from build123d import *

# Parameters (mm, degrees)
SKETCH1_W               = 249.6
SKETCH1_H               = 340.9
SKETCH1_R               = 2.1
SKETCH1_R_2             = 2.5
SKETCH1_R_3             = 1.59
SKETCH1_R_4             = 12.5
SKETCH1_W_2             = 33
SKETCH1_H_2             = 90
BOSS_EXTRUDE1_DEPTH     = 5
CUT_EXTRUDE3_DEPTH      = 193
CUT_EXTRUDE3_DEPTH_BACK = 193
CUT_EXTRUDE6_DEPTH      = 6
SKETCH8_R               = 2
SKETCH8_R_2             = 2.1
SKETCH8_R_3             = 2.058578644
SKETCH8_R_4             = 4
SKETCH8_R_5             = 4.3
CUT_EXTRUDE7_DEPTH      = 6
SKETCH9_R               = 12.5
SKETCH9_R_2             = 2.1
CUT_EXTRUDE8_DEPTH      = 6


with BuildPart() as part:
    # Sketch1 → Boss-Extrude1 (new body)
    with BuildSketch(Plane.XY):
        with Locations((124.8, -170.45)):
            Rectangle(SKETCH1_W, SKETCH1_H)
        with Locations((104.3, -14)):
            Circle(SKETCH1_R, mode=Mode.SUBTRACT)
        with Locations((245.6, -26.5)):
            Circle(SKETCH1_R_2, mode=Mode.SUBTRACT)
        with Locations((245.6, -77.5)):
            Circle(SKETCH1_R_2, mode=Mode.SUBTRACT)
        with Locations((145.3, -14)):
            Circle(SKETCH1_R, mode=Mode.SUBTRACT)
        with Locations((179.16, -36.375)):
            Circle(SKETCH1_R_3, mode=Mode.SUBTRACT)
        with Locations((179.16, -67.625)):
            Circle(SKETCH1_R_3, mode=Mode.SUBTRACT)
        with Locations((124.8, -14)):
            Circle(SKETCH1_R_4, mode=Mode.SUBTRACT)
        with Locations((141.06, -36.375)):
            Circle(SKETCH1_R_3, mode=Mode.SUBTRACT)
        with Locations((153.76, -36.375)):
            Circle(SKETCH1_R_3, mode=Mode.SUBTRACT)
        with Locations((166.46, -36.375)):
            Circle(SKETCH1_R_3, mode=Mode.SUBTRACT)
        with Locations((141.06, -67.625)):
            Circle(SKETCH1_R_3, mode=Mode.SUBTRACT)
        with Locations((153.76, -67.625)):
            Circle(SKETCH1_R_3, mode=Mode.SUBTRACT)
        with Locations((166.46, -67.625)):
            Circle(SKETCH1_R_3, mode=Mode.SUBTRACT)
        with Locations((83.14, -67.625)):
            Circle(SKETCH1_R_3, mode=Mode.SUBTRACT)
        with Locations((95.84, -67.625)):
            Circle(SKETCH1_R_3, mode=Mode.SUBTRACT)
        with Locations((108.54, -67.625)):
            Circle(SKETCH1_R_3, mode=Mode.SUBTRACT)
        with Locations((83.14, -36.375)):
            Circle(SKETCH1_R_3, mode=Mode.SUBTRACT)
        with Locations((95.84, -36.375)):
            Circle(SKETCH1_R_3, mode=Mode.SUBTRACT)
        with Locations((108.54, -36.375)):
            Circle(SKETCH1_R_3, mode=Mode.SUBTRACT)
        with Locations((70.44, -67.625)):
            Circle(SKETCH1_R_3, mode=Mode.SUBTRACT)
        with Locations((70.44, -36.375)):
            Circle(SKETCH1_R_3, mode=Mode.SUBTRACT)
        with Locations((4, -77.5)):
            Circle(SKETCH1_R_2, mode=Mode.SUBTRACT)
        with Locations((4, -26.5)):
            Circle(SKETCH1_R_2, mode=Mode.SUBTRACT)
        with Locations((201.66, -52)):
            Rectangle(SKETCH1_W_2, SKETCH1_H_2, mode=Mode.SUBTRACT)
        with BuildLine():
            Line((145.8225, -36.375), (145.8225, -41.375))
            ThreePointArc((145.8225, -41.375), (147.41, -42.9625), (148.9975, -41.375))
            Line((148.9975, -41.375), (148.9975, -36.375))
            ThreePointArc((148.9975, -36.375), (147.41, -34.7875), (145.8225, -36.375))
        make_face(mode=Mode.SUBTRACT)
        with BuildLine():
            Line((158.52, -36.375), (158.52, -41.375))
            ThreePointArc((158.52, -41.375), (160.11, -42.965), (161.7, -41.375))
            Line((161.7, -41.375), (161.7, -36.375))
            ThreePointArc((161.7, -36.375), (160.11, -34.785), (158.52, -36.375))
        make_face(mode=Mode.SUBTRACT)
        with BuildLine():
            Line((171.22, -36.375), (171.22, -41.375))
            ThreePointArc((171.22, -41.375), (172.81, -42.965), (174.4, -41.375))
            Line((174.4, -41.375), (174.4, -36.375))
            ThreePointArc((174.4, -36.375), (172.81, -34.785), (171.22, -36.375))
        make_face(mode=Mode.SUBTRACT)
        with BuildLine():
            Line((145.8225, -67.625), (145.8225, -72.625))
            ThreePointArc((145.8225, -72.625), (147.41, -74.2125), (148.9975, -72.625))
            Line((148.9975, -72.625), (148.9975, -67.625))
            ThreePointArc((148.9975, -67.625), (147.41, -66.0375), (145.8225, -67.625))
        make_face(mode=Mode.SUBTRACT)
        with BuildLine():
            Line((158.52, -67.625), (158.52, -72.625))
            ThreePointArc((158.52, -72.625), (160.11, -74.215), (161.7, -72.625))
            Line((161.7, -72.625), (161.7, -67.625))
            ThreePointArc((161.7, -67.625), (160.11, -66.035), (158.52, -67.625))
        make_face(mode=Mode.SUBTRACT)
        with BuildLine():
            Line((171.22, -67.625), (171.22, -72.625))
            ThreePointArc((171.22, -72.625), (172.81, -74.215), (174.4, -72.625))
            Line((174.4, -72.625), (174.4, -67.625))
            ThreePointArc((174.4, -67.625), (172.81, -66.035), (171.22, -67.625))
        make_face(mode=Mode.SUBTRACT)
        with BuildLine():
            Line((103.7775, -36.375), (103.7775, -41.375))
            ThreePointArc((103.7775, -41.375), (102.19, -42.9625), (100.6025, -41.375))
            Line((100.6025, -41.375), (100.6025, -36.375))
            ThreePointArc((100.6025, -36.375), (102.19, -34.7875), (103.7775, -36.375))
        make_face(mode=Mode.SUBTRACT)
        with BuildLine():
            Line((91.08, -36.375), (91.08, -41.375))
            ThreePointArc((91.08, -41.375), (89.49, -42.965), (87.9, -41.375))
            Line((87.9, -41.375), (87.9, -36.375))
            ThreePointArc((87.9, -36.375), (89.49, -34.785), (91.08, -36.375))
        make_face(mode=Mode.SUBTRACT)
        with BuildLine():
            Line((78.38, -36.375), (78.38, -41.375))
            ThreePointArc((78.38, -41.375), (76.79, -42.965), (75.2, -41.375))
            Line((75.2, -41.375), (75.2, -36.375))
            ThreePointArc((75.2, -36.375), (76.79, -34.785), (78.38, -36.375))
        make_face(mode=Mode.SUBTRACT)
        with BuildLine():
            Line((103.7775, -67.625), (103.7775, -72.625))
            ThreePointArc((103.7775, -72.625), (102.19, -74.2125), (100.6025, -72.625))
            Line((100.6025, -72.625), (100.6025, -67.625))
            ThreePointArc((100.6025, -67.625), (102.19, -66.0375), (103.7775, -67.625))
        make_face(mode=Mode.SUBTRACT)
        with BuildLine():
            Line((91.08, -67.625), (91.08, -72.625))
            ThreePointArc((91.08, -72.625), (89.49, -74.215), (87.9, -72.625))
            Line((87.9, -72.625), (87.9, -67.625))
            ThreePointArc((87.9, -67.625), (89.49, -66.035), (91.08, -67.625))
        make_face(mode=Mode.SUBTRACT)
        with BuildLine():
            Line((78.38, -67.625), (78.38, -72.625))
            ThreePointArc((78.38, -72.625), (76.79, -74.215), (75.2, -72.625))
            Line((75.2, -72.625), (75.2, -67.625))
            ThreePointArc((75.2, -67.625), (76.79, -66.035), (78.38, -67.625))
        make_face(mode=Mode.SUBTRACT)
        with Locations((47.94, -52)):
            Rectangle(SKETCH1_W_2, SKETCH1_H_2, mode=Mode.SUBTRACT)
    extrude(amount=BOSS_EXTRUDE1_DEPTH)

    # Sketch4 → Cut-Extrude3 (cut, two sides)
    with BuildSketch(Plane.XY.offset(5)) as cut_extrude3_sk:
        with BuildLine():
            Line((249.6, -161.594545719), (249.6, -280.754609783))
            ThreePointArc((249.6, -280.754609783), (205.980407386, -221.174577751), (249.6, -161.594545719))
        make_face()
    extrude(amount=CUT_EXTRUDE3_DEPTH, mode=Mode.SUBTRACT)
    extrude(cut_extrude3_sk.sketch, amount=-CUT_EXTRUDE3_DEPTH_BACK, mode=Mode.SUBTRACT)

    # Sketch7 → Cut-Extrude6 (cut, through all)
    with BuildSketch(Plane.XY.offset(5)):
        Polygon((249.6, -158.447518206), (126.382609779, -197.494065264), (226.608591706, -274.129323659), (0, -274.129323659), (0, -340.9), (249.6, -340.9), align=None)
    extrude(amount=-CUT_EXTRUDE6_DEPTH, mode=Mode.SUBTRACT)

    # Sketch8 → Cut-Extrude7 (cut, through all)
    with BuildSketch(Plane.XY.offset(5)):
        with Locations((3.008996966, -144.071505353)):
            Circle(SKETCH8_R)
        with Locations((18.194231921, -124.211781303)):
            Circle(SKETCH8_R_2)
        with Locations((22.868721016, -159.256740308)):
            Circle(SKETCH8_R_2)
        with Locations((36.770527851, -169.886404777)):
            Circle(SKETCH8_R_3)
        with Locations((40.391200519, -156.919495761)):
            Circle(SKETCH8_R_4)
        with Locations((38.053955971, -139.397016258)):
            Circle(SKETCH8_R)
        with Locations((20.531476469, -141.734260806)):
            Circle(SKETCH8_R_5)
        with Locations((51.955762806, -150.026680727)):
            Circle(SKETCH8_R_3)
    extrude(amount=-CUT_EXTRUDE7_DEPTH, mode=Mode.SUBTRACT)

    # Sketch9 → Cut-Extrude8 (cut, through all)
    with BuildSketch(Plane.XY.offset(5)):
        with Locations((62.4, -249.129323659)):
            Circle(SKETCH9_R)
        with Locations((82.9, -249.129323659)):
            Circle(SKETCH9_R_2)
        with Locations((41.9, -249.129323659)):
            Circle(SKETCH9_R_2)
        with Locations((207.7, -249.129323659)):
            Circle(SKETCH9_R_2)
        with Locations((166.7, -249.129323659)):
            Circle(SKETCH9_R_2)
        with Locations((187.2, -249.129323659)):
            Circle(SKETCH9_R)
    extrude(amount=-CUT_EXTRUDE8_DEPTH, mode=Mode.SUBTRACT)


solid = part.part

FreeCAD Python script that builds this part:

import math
import FreeCAD as App
import Part
import Sketcher


def add_polygon(sketch, points):
    """Adds a closed chain of lines whose ends are joined by coincident constraints."""
    first, n = sketch.GeometryCount, len(points)
    for a, b in zip(points, points[1:] + points[:1]):
        sketch.addGeometry(Part.LineSegment(App.Vector(*a, 0), App.Vector(*b, 0)), False)
    for i in range(n):
        sketch.addConstraint(Sketcher.Constraint("Coincident", first + i, 2, first + (i + 1) % n, 1))

doc = App.newDocument("Part")
body = doc.addObject("PartDesign::Body", "Body")

# Sketch on XY plane
sketch1 = body.newObject("Sketcher::SketchObject", "Sketch")
sketch1.AttachmentSupport = (doc.getObject("XY_Plane"), [""])
sketch1.MapMode = "FlatFace"
add_polygon(sketch1, [(0, 0), (0, -340.9), (249.6, -340.9), (249.6, 0)])  # lines 0-3
sketch1.addGeometry(Part.Circle(App.Vector(4, -77.5, 0), App.Vector(0, 0, 1), 2.5), False)  # 4
add_polygon(sketch1, [(64.4, -97), (31.4, -97), (31.4, -7), (64.4, -7)])  # lines 5-8
sketch1.addGeometry(Part.Circle(App.Vector(70.4, -67.6, 0), App.Vector(0, 0, 1), 1.6), False)  # 9
sketch1.addGeometry(Part.ArcOfCircle(Part.Circle(App.Vector(76.8, -67.6, 0), App.Vector(0, 0, 1), 1.6), math.radians(0), math.radians(180)), False)  # 10
sketch1.addGeometry(Part.LineSegment(App.Vector(78.4, -67.6, 0), App.Vector(78.4, -72.6, 0)), False)  # 11
sketch1.addGeometry(Part.ArcOfCircle(Part.Circle(App.Vector(76.8, -72.6, 0), App.Vector(0, 0, 1), 1.6), math.radians(180), math.radians(360)), False)  # 12
sketch1.addGeometry(Part.LineSegment(App.Vector(75.2, -72.6, 0), App.Vector(75.2, -67.6, 0)), False)  # 13
sketch1.addGeometry(Part.Circle(App.Vector(83.1, -67.6, 0), App.Vector(0, 0, 1), 1.6), False)  # 14
sketch1.addGeometry(Part.ArcOfCircle(Part.Circle(App.Vector(89.5, -67.6, 0), App.Vector(0, 0, 1), 1.6), math.radians(0), math.radians(180)), False)  # 15
sketch1.addGeometry(Part.LineSegment(App.Vector(91.1, -67.6, 0), App.Vector(91.1, -72.6, 0)), False)  # 16
sketch1.addGeometry(Part.ArcOfCircle(Part.Circle(App.Vector(89.5, -72.6, 0), App.Vector(0, 0, 1), 1.6), math.radians(180), math.radians(360)), False)  # 17
sketch1.addGeometry(Part.LineSegment(App.Vector(87.9, -72.6, 0), App.Vector(87.9, -67.6, 0)), False)  # 18
sketch1.addGeometry(Part.Circle(App.Vector(95.8, -67.6, 0), App.Vector(0, 0, 1), 1.6), False)  # 19
sketch1.addGeometry(Part.ArcOfCircle(Part.Circle(App.Vector(102.2, -67.6, 0), App.Vector(0, 0, 1), 1.6), math.radians(0), math.radians(180)), False)  # 20
sketch1.addGeometry(Part.LineSegment(App.Vector(103.8, -67.6, 0), App.Vector(103.8, -72.6, 0)), False)  # 21
sketch1.addGeometry(Part.ArcOfCircle(Part.Circle(App.Vector(102.2, -72.6, 0), App.Vector(0, 0, 1), 1.6), math.radians(180), math.radians(360)), False)  # 22
sketch1.addGeometry(Part.LineSegment(App.Vector(100.6, -72.6, 0), App.Vector(100.6, -67.6, 0)), False)  # 23
sketch1.addGeometry(Part.Circle(App.Vector(108.5, -67.6, 0), App.Vector(0, 0, 1), 1.6), False)  # 24
sketch1.addGeometry(Part.Circle(App.Vector(245.6, -77.5, 0), App.Vector(0, 0, 1), 2.5), False)  # 25
sketch1.addGeometry(Part.LineSegment(App.Vector(145.8, -72.6, 0), App.Vector(145.8, -67.6, 0)), False)  # 26
sketch1.addGeometry(Part.ArcOfCircle(Part.Circle(App.Vector(147.4, -67.6, 0), App.Vector(0, 0, 1), 1.6), math.radians(0), math.radians(180)), False)  # 27
sketch1.addGeometry(Part.LineSegment(App.Vector(149, -67.6, 0), App.Vector(149, -72.6, 0)), False)  # 28
sketch1.addGeometry(Part.ArcOfCircle(Part.Circle(App.Vector(147.4, -72.6, 0), App.Vector(0, 0, 1), 1.6), math.radians(180), math.radians(360)), False)  # 29
sketch1.addGeometry(Part.Circle(App.Vector(141.1, -67.6, 0), App.Vector(0, 0, 1), 1.6), False)  # 30
sketch1.addGeometry(Part.Circle(App.Vector(153.8, -67.6, 0), App.Vector(0, 0, 1), 1.6), False)  # 31
sketch1.addGeometry(Part.LineSegment(App.Vector(158.5, -72.6, 0), App.Vector(158.5, -67.6, 0)), False)  # 32
sketch1.addGeometry(Part.ArcOfCircle(Part.Circle(App.Vector(160.1, -67.6, 0), App.Vector(0, 0, 1), 1.6), math.radians(0), math.radians(180)), False)  # 33
sketch1.addGeometry(Part.LineSegment(App.Vector(161.7, -67.6, 0), App.Vector(161.7, -72.6, 0)), False)  # 34
sketch1.addGeometry(Part.ArcOfCircle(Part.Circle(App.Vector(160.1, -72.6, 0), App.Vector(0, 0, 1), 1.6), math.radians(180), math.radians(360)), False)  # 35
sketch1.addGeometry(Part.Circle(App.Vector(166.5, -67.6, 0), App.Vector(0, 0, 1), 1.6), False)  # 36
sketch1.addGeometry(Part.LineSegment(App.Vector(171.2, -72.6, 0), App.Vector(171.2, -67.6, 0)), False)  # 37
sketch1.addGeometry(Part.ArcOfCircle(Part.Circle(App.Vector(172.8, -67.6, 0), App.Vector(0, 0, 1), 1.6), math.radians(0), math.radians(180)), False)  # 38
sketch1.addGeometry(Part.LineSegment(App.Vector(174.4, -67.6, 0), App.Vector(174.4, -72.6, 0)), False)  # 39
sketch1.addGeometry(Part.ArcOfCircle(Part.Circle(App.Vector(172.8, -72.6, 0), App.Vector(0, 0, 1), 1.6), math.radians(180), math.radians(360)), False)  # 40
sketch1.addGeometry(Part.Circle(App.Vector(179.2, -67.6, 0), App.Vector(0, 0, 1), 1.6), False)  # 41
add_polygon(sketch1, [(218.2, -97), (185.2, -97), (185.2, -7), (218.2, -7)])  # lines 42-45
sketch1.addGeometry(Part.Circle(App.Vector(4, -26.5, 0), App.Vector(0, 0, 1), 2.5), False)  # 46
sketch1.addGeometry(Part.ArcOfCircle(Part.Circle(App.Vector(76.8, -36.4, 0), App.Vector(0, 0, 1), 1.6), math.radians(0), math.radians(180)), False)  # 47
sketch1.addGeometry(Part.LineSegment(App.Vector(78.4, -36.4, 0), App.Vector(78.4, -41.4, 0)), False)  # 48
sketch1.addGeometry(Part.ArcOfCircle(Part.Circle(App.Vector(76.8, -41.4, 0), App.Vector(0, 0, 1), 1.6), math.radians(180), math.radians(360)), False)  # 49
sketch1.addGeometry(Part.LineSegment(App.Vector(75.2, -41.4, 0), App.Vector(75.2, -36.4, 0)), False)  # 50
sketch1.addGeometry(Part.ArcOfCircle(Part.Circle(App.Vector(89.5, -36.4, 0), App.Vector(0, 0, 1), 1.6), math.radians(0), math.radians(180)), False)  # 51
sketch1.addGeometry(Part.LineSegment(App.Vector(91.1, -36.4, 0), App.Vector(91.1, -41.4, 0)), False)  # 52
sketch1.addGeometry(Part.ArcOfCircle(Part.Circle(App.Vector(89.5, -41.4, 0), App.Vector(0, 0, 1), 1.6), math.radians(180), math.radians(360)), False)  # 53
sketch1.addGeometry(Part.LineSegment(App.Vector(87.9, -41.4, 0), App.Vector(87.9, -36.4, 0)), False)  # 54
sketch1.addGeometry(Part.ArcOfCircle(Part.Circle(App.Vector(102.2, -36.4, 0), App.Vector(0, 0, 1), 1.6), math.radians(0), math.radians(180)), False)  # 55
sketch1.addGeometry(Part.LineSegment(App.Vector(103.8, -36.4, 0), App.Vector(103.8, -41.4, 0)), False)  # 56
sketch1.addGeometry(Part.ArcOfCircle(Part.Circle(App.Vector(102.2, -41.4, 0), App.Vector(0, 0, 1), 1.6), math.radians(180), math.radians(360)), False)  # 57
sketch1.addGeometry(Part.LineSegment(App.Vector(100.6, -41.4, 0), App.Vector(100.6, -36.4, 0)), False)  # 58
sketch1.addGeometry(Part.Circle(App.Vector(70.4, -36.4, 0), App.Vector(0, 0, 1), 1.6), False)  # 59
sketch1.addGeometry(Part.Circle(App.Vector(83.1, -36.4, 0), App.Vector(0, 0, 1), 1.6), False)  # 60
sketch1.addGeometry(Part.Circle(App.Vector(95.8, -36.4, 0), App.Vector(0, 0, 1), 1.6), False)  # 61
sketch1.addGeometry(Part.Circle(App.Vector(108.5, -36.4, 0), App.Vector(0, 0, 1), 1.6), False)  # 62
sketch1.addGeometry(Part.Circle(App.Vector(104.3, -14, 0), App.Vector(0, 0, 1), 2.1), False)  # 63
sketch1.addGeometry(Part.Circle(App.Vector(124.8, -14, 0), App.Vector(0, 0, 1), 12.5), False)  # 64
sketch1.addGeometry(Part.LineSegment(App.Vector(145.8, -41.4, 0), App.Vector(145.8, -36.4, 0)), False)  # 65
sketch1.addGeometry(Part.ArcOfCircle(Part.Circle(App.Vector(147.4, -36.4, 0), App.Vector(0, 0, 1), 1.6), math.radians(0), math.radians(180)), False)  # 66
sketch1.addGeometry(Part.LineSegment(App.Vector(149, -36.4, 0), App.Vector(149, -41.4, 0)), False)  # 67
sketch1.addGeometry(Part.ArcOfCircle(Part.Circle(App.Vector(147.4, -41.4, 0), App.Vector(0, 0, 1), 1.6), math.radians(180), math.radians(360)), False)  # 68
sketch1.addGeometry(Part.LineSegment(App.Vector(158.5, -41.4, 0), App.Vector(158.5, -36.4, 0)), False)  # 69
sketch1.addGeometry(Part.ArcOfCircle(Part.Circle(App.Vector(160.1, -36.4, 0), App.Vector(0, 0, 1), 1.6), math.radians(0), math.radians(180)), False)  # 70
sketch1.addGeometry(Part.LineSegment(App.Vector(161.7, -36.4, 0), App.Vector(161.7, -41.4, 0)), False)  # 71
sketch1.addGeometry(Part.ArcOfCircle(Part.Circle(App.Vector(160.1, -41.4, 0), App.Vector(0, 0, 1), 1.6), math.radians(180), math.radians(360)), False)  # 72
sketch1.addGeometry(Part.LineSegment(App.Vector(171.2, -41.4, 0), App.Vector(171.2, -36.4, 0)), False)  # 73
sketch1.addGeometry(Part.ArcOfCircle(Part.Circle(App.Vector(172.8, -36.4, 0), App.Vector(0, 0, 1), 1.6), math.radians(0), math.radians(180)), False)  # 74
sketch1.addGeometry(Part.LineSegment(App.Vector(174.4, -36.4, 0), App.Vector(174.4, -41.4, 0)), False)  # 75
sketch1.addGeometry(Part.ArcOfCircle(Part.Circle(App.Vector(172.8, -41.4, 0), App.Vector(0, 0, 1), 1.6), math.radians(180), math.radians(360)), False)  # 76
sketch1.addGeometry(Part.Circle(App.Vector(141.1, -36.4, 0), App.Vector(0, 0, 1), 1.6), False)  # 77
sketch1.addGeometry(Part.Circle(App.Vector(153.8, -36.4, 0), App.Vector(0, 0, 1), 1.6), False)  # 78
sketch1.addGeometry(Part.Circle(App.Vector(166.5, -36.4, 0), App.Vector(0, 0, 1), 1.6), False)  # 79
sketch1.addGeometry(Part.Circle(App.Vector(179.2, -36.4, 0), App.Vector(0, 0, 1), 1.6), False)  # 80
sketch1.addGeometry(Part.Circle(App.Vector(245.6, -26.5, 0), App.Vector(0, 0, 1), 2.5), False)  # 81
sketch1.addGeometry(Part.Circle(App.Vector(145.3, -14, 0), App.Vector(0, 0, 1), 2.1), False)  # 82
sketch1.addConstraint(Sketcher.Constraint("Tangent", 10, 1, 11, 1))
sketch1.addConstraint(Sketcher.Constraint("Tangent", 11, 2, 12, 2))
sketch1.addConstraint(Sketcher.Constraint("Tangent", 12, 1, 13, 1))
sketch1.addConstraint(Sketcher.Constraint("Tangent", 13, 2, 10, 2))
sketch1.addConstraint(Sketcher.Constraint("Tangent", 15, 1, 16, 1))
sketch1.addConstraint(Sketcher.Constraint("Tangent", 16, 2, 17, 2))
sketch1.addConstraint(Sketcher.Constraint("Tangent", 17, 1, 18, 1))
sketch1.addConstraint(Sketcher.Constraint("Tangent", 18, 2, 15, 2))
sketch1.addConstraint(Sketcher.Constraint("Tangent", 20, 1, 21, 1))
sketch1.addConstraint(Sketcher.Constraint("Tangent", 21, 2, 22, 2))
sketch1.addConstraint(Sketcher.Constraint("Tangent", 22, 1, 23, 1))
sketch1.addConstraint(Sketcher.Constraint("Tangent", 23, 2, 20, 2))
sketch1.addConstraint(Sketcher.Constraint("Tangent", 26, 2, 27, 2))
sketch1.addConstraint(Sketcher.Constraint("Tangent", 27, 1, 28, 1))
sketch1.addConstraint(Sketcher.Constraint("Tangent", 28, 2, 29, 2))
sketch1.addConstraint(Sketcher.Constraint("Tangent", 29, 1, 26, 1))
sketch1.addConstraint(Sketcher.Constraint("Tangent", 32, 2, 33, 2))
sketch1.addConstraint(Sketcher.Constraint("Tangent", 33, 1, 34, 1))
sketch1.addConstraint(Sketcher.Constraint("Tangent", 34, 2, 35, 2))
sketch1.addConstraint(Sketcher.Constraint("Tangent", 35, 1, 32, 1))
sketch1.addConstraint(Sketcher.Constraint("Tangent", 37, 2, 38, 2))
sketch1.addConstraint(Sketcher.Constraint("Tangent", 38, 1, 39, 1))
sketch1.addConstraint(Sketcher.Constraint("Tangent", 39, 2, 40, 2))
sketch1.addConstraint(Sketcher.Constraint("Tangent", 40, 1, 37, 1))
sketch1.addConstraint(Sketcher.Constraint("Tangent", 47, 1, 48, 1))
sketch1.addConstraint(Sketcher.Constraint("Tangent", 48, 2, 49, 2))
sketch1.addConstraint(Sketcher.Constraint("Tangent", 49, 1, 50, 1))
sketch1.addConstraint(Sketcher.Constraint("Tangent", 50, 2, 47, 2))
sketch1.addConstraint(Sketcher.Constraint("Tangent", 51, 1, 52, 1))
sketch1.addConstraint(Sketcher.Constraint("Tangent", 52, 2, 53, 2))
sketch1.addConstraint(Sketcher.Constraint("Tangent", 53, 1, 54, 1))
sketch1.addConstraint(Sketcher.Constraint("Tangent", 54, 2, 51, 2))
sketch1.addConstraint(Sketcher.Constraint("Tangent", 55, 1, 56, 1))
sketch1.addConstraint(Sketcher.Constraint("Tangent", 56, 2, 57, 2))
sketch1.addConstraint(Sketcher.Constraint("Tangent", 57, 1, 58, 1))
sketch1.addConstraint(Sketcher.Constraint("Tangent", 58, 2, 55, 2))
sketch1.addConstraint(Sketcher.Constraint("Tangent", 65, 2, 66, 2))
sketch1.addConstraint(Sketcher.Constraint("Tangent", 66, 1, 67, 1))
sketch1.addConstraint(Sketcher.Constraint("Tangent", 67, 2, 68, 2))
sketch1.addConstraint(Sketcher.Constraint("Tangent", 68, 1, 65, 1))
sketch1.addConstraint(Sketcher.Constraint("Tangent", 69, 2, 70, 2))
sketch1.addConstraint(Sketcher.Constraint("Tangent", 70, 1, 71, 1))
sketch1.addConstraint(Sketcher.Constraint("Tangent", 71, 2, 72, 2))
sketch1.addConstraint(Sketcher.Constraint("Tangent", 72, 1, 69, 1))
sketch1.addConstraint(Sketcher.Constraint("Tangent", 73, 2, 74, 2))
sketch1.addConstraint(Sketcher.Constraint("Tangent", 74, 1, 75, 1))
sketch1.addConstraint(Sketcher.Constraint("Tangent", 75, 2, 76, 2))
sketch1.addConstraint(Sketcher.Constraint("Tangent", 76, 1, 73, 1))
sketch1.addConstraint(Sketcher.Constraint("Vertical", 0))
sketch1.addConstraint(Sketcher.Constraint("Horizontal", 1))
sketch1.addConstraint(Sketcher.Constraint("Vertical", 2))
sketch1.addConstraint(Sketcher.Constraint("Horizontal", 3))
sketch1.addConstraint(Sketcher.Constraint("Horizontal", 5))
sketch1.addConstraint(Sketcher.Constraint("Vertical", 6))
sketch1.addConstraint(Sketcher.Constraint("Horizontal", 7))
sketch1.addConstraint(Sketcher.Constraint("Vertical", 8))
sketch1.addConstraint(Sketcher.Constraint("Vertical", 11))
sketch1.addConstraint(Sketcher.Constraint("Vertical", 13))
sketch1.addConstraint(Sketcher.Constraint("Vertical", 16))
sketch1.addConstraint(Sketcher.Constraint("Vertical", 18))
sketch1.addConstraint(Sketcher.Constraint("Vertical", 21))
sketch1.addConstraint(Sketcher.Constraint("Vertical", 23))
sketch1.addConstraint(Sketcher.Constraint("Vertical", 26))
sketch1.addConstraint(Sketcher.Constraint("Vertical", 28))
sketch1.addConstraint(Sketcher.Constraint("Vertical", 32))
sketch1.addConstraint(Sketcher.Constraint("Vertical", 34))
sketch1.addConstraint(Sketcher.Constraint("Vertical", 37))
sketch1.addConstraint(Sketcher.Constraint("Vertical", 39))
sketch1.addConstraint(Sketcher.Constraint("Horizontal", 42))
sketch1.addConstraint(Sketcher.Constraint("Vertical", 43))
sketch1.addConstraint(Sketcher.Constraint("Horizontal", 44))
sketch1.addConstraint(Sketcher.Constraint("Vertical", 45))
sketch1.addConstraint(Sketcher.Constraint("Vertical", 48))
sketch1.addConstraint(Sketcher.Constraint("Vertical", 50))
sketch1.addConstraint(Sketcher.Constraint("Vertical", 52))
sketch1.addConstraint(Sketcher.Constraint("Vertical", 54))
sketch1.addConstraint(Sketcher.Constraint("Vertical", 56))
sketch1.addConstraint(Sketcher.Constraint("Vertical", 58))
sketch1.addConstraint(Sketcher.Constraint("Vertical", 65))
sketch1.addConstraint(Sketcher.Constraint("Vertical", 67))
sketch1.addConstraint(Sketcher.Constraint("Vertical", 69))
sketch1.addConstraint(Sketcher.Constraint("Vertical", 71))
sketch1.addConstraint(Sketcher.Constraint("Vertical", 73))
sketch1.addConstraint(Sketcher.Constraint("Vertical", 75))
sketch1.addConstraint(Sketcher.Constraint("Coincident", 3, 2, -1, 1))
sketch1.addConstraint(Sketcher.Constraint("Equal", 9, 10))
sketch1.addConstraint(Sketcher.Constraint("Equal", 12, 14))
sketch1.addConstraint(Sketcher.Constraint("Equal", 14, 15))
sketch1.addConstraint(Sketcher.Constraint("Equal", 17, 19))
sketch1.addConstraint(Sketcher.Constraint("Equal", 19, 24))
sketch1.addConstraint(Sketcher.Constraint("Equal", 4, 25))
sketch1.addConstraint(Sketcher.Constraint("Equal", 22, 27))
sketch1.addConstraint(Sketcher.Constraint("Equal", 24, 30))
sketch1.addConstraint(Sketcher.Constraint("Equal", 30, 31))
sketch1.addConstraint(Sketcher.Constraint("Equal", 31, 33))
sketch1.addConstraint(Sketcher.Constraint("Equal", 35, 36))
sketch1.addConstraint(Sketcher.Constraint("Equal", 36, 38))
sketch1.addConstraint(Sketcher.Constraint("Equal", 40, 41))
sketch1.addConstraint(Sketcher.Constraint("Equal", 25, 46))
sketch1.addConstraint(Sketcher.Constraint("Equal", 41, 47))
sketch1.addConstraint(Sketcher.Constraint("Equal", 49, 51))
sketch1.addConstraint(Sketcher.Constraint("Equal", 29, 55))
sketch1.addConstraint(Sketcher.Constraint("Equal", 53, 59))
sketch1.addConstraint(Sketcher.Constraint("Equal", 59, 60))
sketch1.addConstraint(Sketcher.Constraint("Equal", 60, 61))
sketch1.addConstraint(Sketcher.Constraint("Equal", 61, 62))
sketch1.addConstraint(Sketcher.Constraint("Equal", 57, 66))
sketch1.addConstraint(Sketcher.Constraint("Equal", 62, 70))
sketch1.addConstraint(Sketcher.Constraint("Equal", 72, 74))
sketch1.addConstraint(Sketcher.Constraint("Equal", 76, 77))
sketch1.addConstraint(Sketcher.Constraint("Equal", 77, 78))
sketch1.addConstraint(Sketcher.Constraint("Equal", 78, 79))
sketch1.addConstraint(Sketcher.Constraint("Equal", 79, 80))
sketch1.addConstraint(Sketcher.Constraint("Equal", 46, 81))
sketch1.addConstraint(Sketcher.Constraint("Equal", 63, 82))
sketch1.addConstraint(Sketcher.Constraint("Horizontal", 9, 3, 10, 3))
sketch1.addConstraint(Sketcher.Constraint("Horizontal", 10, 3, 14, 3))
sketch1.addConstraint(Sketcher.Constraint("Horizontal", 14, 3, 15, 3))
sketch1.addConstraint(Sketcher.Constraint("Horizontal", 12, 3, 17, 3))
sketch1.addConstraint(Sketcher.Constraint("Horizontal", 15, 3, 19, 3))
sketch1.addConstraint(Sketcher.Constraint("Horizontal", 19, 3, 20, 3))
sketch1.addConstraint(Sketcher.Constraint("Horizontal", 17, 3, 22, 3))
sketch1.addConstraint(Sketcher.Constraint("Horizontal", 20, 3, 24, 3))
sketch1.addConstraint(Sketcher.Constraint("Horizontal", 4, 3, 25, 3))
sketch1.addConstraint(Sketcher.Constraint("Horizontal", 24, 3, 27, 3))
sketch1.addConstraint(Sketcher.Constraint("Horizontal", 22, 3, 29, 3))
sketch1.addConstraint(Sketcher.Constraint("Horizontal", 27, 3, 30, 3))
sketch1.addConstraint(Sketcher.Constraint("Horizontal", 30, 3, 31, 3))
sketch1.addConstraint(Sketcher.Constraint("Horizontal", 31, 3, 33, 3))
sketch1.addConstraint(Sketcher.Constraint("Horizontal", 29, 3, 35, 3))
sketch1.addConstraint(Sketcher.Constraint("Horizontal", 33, 3, 36, 3))
sketch1.addConstraint(Sketcher.Constraint("Horizontal", 36, 3, 38, 3))
sketch1.addConstraint(Sketcher.Constraint("Horizontal", 35, 3, 40, 3))
sketch1.addConstraint(Sketcher.Constraint("Horizontal", 38, 3, 41, 3))
sketch1.addConstraint(Sketcher.Constraint("Horizontal", 47, 3, 51, 3))
sketch1.addConstraint(Sketcher.Constraint("Horizontal", 49, 3, 53, 3))
sketch1.addConstraint(Sketcher.Constraint("Horizontal", 51, 3, 55, 3))
sketch1.addConstraint(Sketcher.Constraint("Horizontal", 53, 3, 57, 3))
sketch1.addConstraint(Sketcher.Constraint("Horizontal", 55, 3, 59, 3))
sketch1.addConstraint(Sketcher.Constraint("Horizontal", 59, 3, 60, 3))
sketch1.addConstraint(Sketcher.Constraint("Horizontal", 60, 3, 61, 3))
sketch1.addConstraint(Sketcher.Constraint("Horizontal", 61, 3, 62, 3))
sketch1.addConstraint(Sketcher.Constraint("Horizontal", 63, 3, 64, 3))
sketch1.addConstraint(Sketcher.Constraint("Horizontal", 62, 3, 66, 3))
sketch1.addConstraint(Sketcher.Constraint("Horizontal", 57, 3, 68, 3))
sketch1.addConstraint(Sketcher.Constraint("Horizontal", 66, 3, 70, 3))
sketch1.addConstraint(Sketcher.Constraint("Horizontal", 68, 3, 72, 3))
sketch1.addConstraint(Sketcher.Constraint("Horizontal", 70, 3, 74, 3))
sketch1.addConstraint(Sketcher.Constraint("Horizontal", 72, 3, 76, 3))
sketch1.addConstraint(Sketcher.Constraint("Horizontal", 74, 3, 77, 3))
sketch1.addConstraint(Sketcher.Constraint("Horizontal", 77, 3, 78, 3))
sketch1.addConstraint(Sketcher.Constraint("Horizontal", 78, 3, 79, 3))
sketch1.addConstraint(Sketcher.Constraint("Horizontal", 79, 3, 80, 3))
sketch1.addConstraint(Sketcher.Constraint("Horizontal", 46, 3, 81, 3))
sketch1.addConstraint(Sketcher.Constraint("Horizontal", 64, 3, 82, 3))
sketch1.addConstraint(Sketcher.Constraint("Horizontal", 8, 2, 42, 2))
sketch1.addConstraint(Sketcher.Constraint("Horizontal", 7, 2, 43, 2))
sketch1.addConstraint(Sketcher.Constraint("Vertical", 4, 3, 46, 3))
sketch1.addConstraint(Sketcher.Constraint("Vertical", 12, 3, 47, 3))
sketch1.addConstraint(Sketcher.Constraint("Vertical", 17, 3, 51, 3))
sketch1.addConstraint(Sketcher.Constraint("Vertical", 22, 3, 55, 3))
sketch1.addConstraint(Sketcher.Constraint("Vertical", 9, 3, 59, 3))
sketch1.addConstraint(Sketcher.Constraint("Vertical", 14, 3, 60, 3))
sketch1.addConstraint(Sketcher.Constraint("Vertical", 19, 3, 61, 3))
sketch1.addConstraint(Sketcher.Constraint("Vertical", 24, 3, 62, 3))
sketch1.addConstraint(Sketcher.Constraint("Vertical", 29, 3, 66, 3))
sketch1.addConstraint(Sketcher.Constraint("Vertical", 35, 3, 70, 3))
sketch1.addConstraint(Sketcher.Constraint("Vertical", 40, 3, 74, 3))
sketch1.addConstraint(Sketcher.Constraint("Vertical", 30, 3, 77, 3))
sketch1.addConstraint(Sketcher.Constraint("Vertical", 31, 3, 78, 3))
sketch1.addConstraint(Sketcher.Constraint("Vertical", 36, 3, 79, 3))
sketch1.addConstraint(Sketcher.Constraint("Vertical", 41, 3, 80, 3))
sketch1.addConstraint(Sketcher.Constraint("Vertical", 25, 3, 81, 3))
sketch1.addConstraint(Sketcher.Constraint("Equal", 7, 42))
sketch1.addConstraint(Sketcher.Constraint("Equal", 39, 48))
sketch1.addConstraint(Sketcher.Constraint("Diameter", 4, 5.0))
sketch1.addConstraint(Sketcher.Constraint("Diameter", 64, 25.0))
sketch1.addConstraint(Sketcher.Constraint("Diameter", 63, 4.2))
sketch1.addConstraint(Sketcher.Constraint("Diameter", 9, 3.18))
sketch1.addConstraint(Sketcher.Constraint("DistanceX", 5, 2, 5, 1, 33.0))
sketch1.addConstraint(Sketcher.Constraint("DistanceY", 6, 1, 6, 2, 90.0))
sketch1.addConstraint(Sketcher.Constraint("DistanceY", 11, 2, 11, 1, 5.0))
sketch1.addConstraint(Sketcher.Constraint("DistanceX", 1, 1, 1, 2, 249.6))
sketch1.addConstraint(Sketcher.Constraint("DistanceY", 0, 2, 0, 1, 340.9))
sketch1.addConstraint(Sketcher.Constraint("DistanceX", -1, 1, 4, 3, 4.0))
sketch1.addConstraint(Sketcher.Constraint("DistanceY", 63, 3, -1, 1, 14.0))
sketch1.addConstraint(Sketcher.Constraint("DistanceY", 5, 2, -1, 1, 97.0))
sketch1.addConstraint(Sketcher.Constraint("DistanceY", 4, 3, -1, 1, 77.5))
sketch1.addConstraint(Sketcher.Constraint("DistanceX", -1, 1, 25, 3, 245.6))
sketch1.addConstraint(Sketcher.Constraint("DistanceY", 46, 3, -1, 1, 26.5))
sketch1.addConstraint(Sketcher.Constraint("DistanceX", -1, 1, 63, 3, 104.3))
sketch1.addConstraint(Sketcher.Constraint("DistanceX", -1, 1, 64, 3, 124.8))
sketch1.addConstraint(Sketcher.Constraint("DistanceX", -1, 1, 82, 3, 145.3))
sketch1.addConstraint(Sketcher.Constraint("DistanceX", -1, 1, 12, 1, 75.2))
sketch1.addConstraint(Sketcher.Constraint("DistanceX", -1, 1, 17, 1, 87.9))
sketch1.addConstraint(Sketcher.Constraint("DistanceX", -1, 1, 33, 1, 161.7))
sketch1.addConstraint(Sketcher.Constraint("DistanceX", -1, 1, 38, 1, 174.4))
sketch1.addConstraint(Sketcher.Constraint("Radius", 20, 1.5875))
sketch1.addConstraint(Sketcher.Constraint("DistanceX", -1, 1, 9, 3, 70.44))
sketch1.addConstraint(Sketcher.Constraint("DistanceX", -1, 1, 14, 3, 83.14))
sketch1.addConstraint(Sketcher.Constraint("DistanceX", -1, 1, 19, 3, 95.84))
sketch1.addConstraint(Sketcher.Constraint("DistanceX", -1, 1, 20, 3, 102.19))
sketch1.addConstraint(Sketcher.Constraint("DistanceX", -1, 1, 24, 3, 108.54))
sketch1.addConstraint(Sketcher.Constraint("DistanceX", -1, 1, 27, 3, 147.41))
sketch1.addConstraint(Sketcher.Constraint("DistanceX", -1, 1, 30, 3, 141.06))
sketch1.addConstraint(Sketcher.Constraint("DistanceX", -1, 1, 31, 3, 153.76))
sketch1.addConstraint(Sketcher.Constraint("DistanceX", -1, 1, 36, 3, 166.46))
sketch1.addConstraint(Sketcher.Constraint("DistanceX", -1, 1, 41, 3, 179.16))
sketch1.addConstraint(Sketcher.Constraint("DistanceX", -1, 1, 5, 2, 31.44))
sketch1.addConstraint(Sketcher.Constraint("DistanceX", -1, 1, 42, 2, 185.16))
sketch1.addConstraint(Sketcher.Constraint("DistanceY", 9, 3, -1, 1, 67.625))
sketch1.addConstraint(Sketcher.Constraint("DistanceY", 47, 3, -1, 1, 36.375))
pad1 = body.newObject("PartDesign::Pad", "Pad")
pad1.Profile = sketch1
pad1.Length = 5

# Sketch on XY plane
sketch2 = body.newObject("Sketcher::SketchObject", "Sketch001")
sketch2.AttachmentSupport = (doc.getObject("XY_Plane"), [""])
sketch2.MapMode = "FlatFace"
sketch2.AttachmentOffset = App.Placement(App.Vector(0, 0, 5), App.Rotation())
sketch2.addGeometry(Part.LineSegment(App.Vector(250, -281, 0), App.Vector(250, -162, 0)), False)
sketch2.addGeometry(Part.ArcOfCircle(Part.Circle(App.Vector(268, -221, 0), App.Vector(0, 0, 1), 62), math.radians(108), math.radians(252)), False)
sketch2.addConstraint(Sketcher.Constraint("Coincident", 0, 1, 1, 2))
sketch2.addConstraint(Sketcher.Constraint("Coincident", 1, 1, 0, 2))
sketch2.addConstraint(Sketcher.Constraint("Vertical", 0))
sketch2.addConstraint(Sketcher.Constraint("Radius", 1, 62.5))
sketch2.addConstraint(Sketcher.Constraint("DistanceX", -1, 1, 0, 1, 249.6))
sketch2.addConstraint(Sketcher.Constraint("DistanceY", 0, 1, 0, 2, 119.160064))
sketch2.addConstraint(Sketcher.Constraint("DistanceY", 0, 1, -1, 1, 280.75461))
pocket1 = body.newObject("PartDesign::Pocket", "Pocket")
pocket1.Profile = sketch2
pocket1.Type = "ThroughAll"
pocket1.Midplane = True

# Sketch on XY plane
sketch3 = body.newObject("Sketcher::SketchObject", "Sketch002")
sketch3.AttachmentSupport = (doc.getObject("XY_Plane"), [""])
sketch3.MapMode = "FlatFace"
sketch3.AttachmentOffset = App.Placement(App.Vector(0, 0, 5), App.Rotation())
add_polygon(sketch3, [(250, -158), (126, -197), (227, -274), (0, -274), (0, -341), (250, -341)])  # lines 0-5
sketch3.addConstraint(Sketcher.Constraint("Horizontal", 2))
sketch3.addConstraint(Sketcher.Constraint("Vertical", 3))
sketch3.addConstraint(Sketcher.Constraint("Horizontal", 4))
sketch3.addConstraint(Sketcher.Constraint("Vertical", 5))
sketch3.addConstraint(Sketcher.Constraint("PointOnObject", 2, 2, -2))
sketch3.addConstraint(Sketcher.Constraint("DistanceX", 4, 1, 4, 2, 249.6))
sketch3.addConstraint(Sketcher.Constraint("DistanceY", 3, 2, -1, 1, 340.9))
sketch3.addConstraint(Sketcher.Constraint("DistanceX", 2, 2, 2, 1, 226.608592))
sketch3.addConstraint(Sketcher.Constraint("DistanceY", 5, 1, 5, 2, 182.452482))
sketch3.addConstraint(Sketcher.Constraint("Distance", 1, 126.16739))
sketch3.addConstraint(Sketcher.Constraint("DistanceY", 3, 2, 3, 1, 66.770676))
sketch3.addConstraint(Sketcher.Constraint("DistanceX", -1, 1, 0, 2, 126.38261))
pocket2 = body.newObject("PartDesign::Pocket", "Pocket001")
pocket2.Profile = sketch3
pocket2.Type = "ThroughAll"

# Sketch on XY plane
sketch4 = body.newObject("Sketcher::SketchObject", "Sketch003")
sketch4.AttachmentSupport = (doc.getObject("XY_Plane"), [""])
sketch4.MapMode = "FlatFace"
sketch4.AttachmentOffset = App.Placement(App.Vector(0, 0, 5), App.Rotation())
sketch4.addGeometry(Part.Circle(App.Vector(3, -144.1, 0), App.Vector(0, 0, 1), 2), False)
sketch4.addGeometry(Part.Circle(App.Vector(18.2, -124.2, 0), App.Vector(0, 0, 1), 2.1), False)
sketch4.addGeometry(Part.Circle(App.Vector(22.9, -159.3, 0), App.Vector(0, 0, 1), 2.1), False)
sketch4.addGeometry(Part.Circle(App.Vector(36.8, -169.9, 0), App.Vector(0, 0, 1), 2.1), False)
sketch4.addGeometry(Part.Circle(App.Vector(40.4, -156.9, 0), App.Vector(0, 0, 1), 4), False)
sketch4.addGeometry(Part.Circle(App.Vector(38.1, -139.4, 0), App.Vector(0, 0, 1), 2), False)
sketch4.addGeometry(Part.Circle(App.Vector(20.5, -141.7, 0), App.Vector(0, 0, 1), 4.3), False)
sketch4.addGeometry(Part.Circle(App.Vector(52, -150, 0), App.Vector(0, 0, 1), 2.1), False)
sketch4.addConstraint(Sketcher.Constraint("Equal", 1, 2))
sketch4.addConstraint(Sketcher.Constraint("Equal", 0, 5))
sketch4.addConstraint(Sketcher.Constraint("Equal", 3, 7))
sketch4.addConstraint(Sketcher.Constraint("Diameter", 0, 4.0))
sketch4.addConstraint(Sketcher.Constraint("Diameter", 4, 8.0))
sketch4.addConstraint(Sketcher.Constraint("Diameter", 1, 4.2))
sketch4.addConstraint(Sketcher.Constraint("Diameter", 6, 8.6))
sketch4.addConstraint(Sketcher.Constraint("Diameter", 3, 4.117157))
sketch4.addConstraint(Sketcher.Constraint("DistanceX", -1, 1, 4, 3, 40.391201))
sketch4.addConstraint(Sketcher.Constraint("DistanceY", 3, 3, 0, 3, 25.814899))
sketch4.addConstraint(Sketcher.Constraint("DistanceX", -1, 1, 1, 3, 18.194232))
sketch4.addConstraint(Sketcher.Constraint("DistanceY", 1, 3, -1, 1, 124.211781))
sketch4.addConstraint(Sketcher.Constraint("DistanceX", -1, 1, 2, 3, 22.868721))
sketch4.addConstraint(Sketcher.Constraint("DistanceY", 2, 3, -1, 1, 159.25674))
sketch4.addConstraint(Sketcher.Constraint("DistanceY", 6, 3, -1, 1, 141.734261))
sketch4.addConstraint(Sketcher.Constraint("DistanceY", 7, 3, -1, 1, 150.026681))
sketch4.addConstraint(Sketcher.Constraint("DistanceX", 0, 3, 3, 3, 33.761531))
sketch4.addConstraint(Sketcher.Constraint("DistanceY", 3, 3, 4, 3, 12.966909))
sketch4.addConstraint(Sketcher.Constraint("DistanceY", 4, 3, 5, 3, 17.52248))
sketch4.addConstraint(Sketcher.Constraint("DistanceX", 3, 3, 5, 3, 1.283428))
sketch4.addConstraint(Sketcher.Constraint("DistanceX", 6, 3, 5, 3, 17.52248))
sketch4.addConstraint(Sketcher.Constraint("DistanceX", 2, 3, 7, 3, 29.087042))
sketch4.addConstraint(Sketcher.Constraint("DistanceX", -1, 1, 0, 3, 3.008997))
sketch4.addConstraint(Sketcher.Constraint("DistanceY", 0, 3, -1, 1, 144.071505))
pocket3 = body.newObject("PartDesign::Pocket", "Pocket002")
pocket3.Profile = sketch4
pocket3.Type = "ThroughAll"

# Sketch on XY plane
sketch5 = body.newObject("Sketcher::SketchObject", "Sketch004")
sketch5.AttachmentSupport = (doc.getObject("XY_Plane"), [""])
sketch5.MapMode = "FlatFace"
sketch5.AttachmentOffset = App.Placement(App.Vector(0, 0, 5), App.Rotation())
sketch5.addGeometry(Part.Circle(App.Vector(62.4, -249.1, 0), App.Vector(0, 0, 1), 12.5), False)
sketch5.addGeometry(Part.Circle(App.Vector(82.9, -249.1, 0), App.Vector(0, 0, 1), 2.1), False)
sketch5.addGeometry(Part.Circle(App.Vector(41.9, -249.1, 0), App.Vector(0, 0, 1), 2.1), False)
sketch5.addGeometry(Part.Circle(App.Vector(207.7, -249.1, 0), App.Vector(0, 0, 1), 2.1), False)
sketch5.addGeometry(Part.Circle(App.Vector(166.7, -249.1, 0), App.Vector(0, 0, 1), 2.1), False)
sketch5.addGeometry(Part.Circle(App.Vector(187.2, -249.1, 0), App.Vector(0, 0, 1), 12.5), False)
sketch5.addConstraint(Sketcher.Constraint("Equal", 1, 2))
sketch5.addConstraint(Sketcher.Constraint("Equal", 2, 3))
sketch5.addConstraint(Sketcher.Constraint("Equal", 3, 4))
sketch5.addConstraint(Sketcher.Constraint("Equal", 0, 5))
sketch5.addConstraint(Sketcher.Constraint("Horizontal", 0, 3, 1, 3))
sketch5.addConstraint(Sketcher.Constraint("Horizontal", 1, 3, 2, 3))
sketch5.addConstraint(Sketcher.Constraint("Horizontal", 2, 3, 3, 3))
sketch5.addConstraint(Sketcher.Constraint("Horizontal", 3, 3, 4, 3))
sketch5.addConstraint(Sketcher.Constraint("Horizontal", 4, 3, 5, 3))
sketch5.addConstraint(Sketcher.Constraint("Diameter", 0, 25.0))
sketch5.addConstraint(Sketcher.Constraint("Diameter", 1, 4.2))
sketch5.addConstraint(Sketcher.Constraint("DistanceX", 2, 3, 1, 3, 41.0))
sketch5.addConstraint(Sketcher.Constraint("DistanceX", 4, 3, 3, 3, 41.0))
sketch5.addConstraint(Sketcher.Constraint("DistanceX", -1, 1, 0, 3, 62.4))
sketch5.addConstraint(Sketcher.Constraint("DistanceX", -1, 1, 1, 3, 82.9))
sketch5.addConstraint(Sketcher.Constraint("DistanceX", -1, 1, 3, 3, 207.7))
sketch5.addConstraint(Sketcher.Constraint("DistanceX", -1, 1, 5, 3, 187.2))
sketch5.addConstraint(Sketcher.Constraint("DistanceY", 0, 3, -1, 1, 249.129324))
pocket4 = body.newObject("PartDesign::Pocket", "Pocket003")
pocket4.Profile = sketch5
pocket4.Type = "ThroughAll"

doc.recompute()
